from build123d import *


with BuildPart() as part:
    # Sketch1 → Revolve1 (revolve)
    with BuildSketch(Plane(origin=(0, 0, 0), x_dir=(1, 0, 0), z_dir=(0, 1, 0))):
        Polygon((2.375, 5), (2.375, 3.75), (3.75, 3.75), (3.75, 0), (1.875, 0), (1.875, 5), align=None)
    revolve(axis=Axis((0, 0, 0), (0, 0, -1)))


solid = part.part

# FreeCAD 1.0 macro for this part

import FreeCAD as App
import Part
import Sketcher

doc = App.newDocument("Part")
body = doc.addObject("PartDesign::Body", "Body")

sketch1 = body.newObject("Sketcher::SketchObject", "Sketch")
sketch1.AttachmentSupport = (doc.getObject("XZ_Plane"), [""])
sketch1.MapMode = "FlatFace"
sketch1.addGeometry([
    Part.LineSegment(App.Vector(2.4, -3.8, 0), App.Vector(2.4, -5, 0)),
    Part.LineSegment(App.Vector(2.4, -5, 0), App.Vector(1.9, -5, 0)),
    Part.LineSegment(App.Vector(1.9, -5, 0), App.Vector(1.9, 0, 0)),
    Part.LineSegment(App.Vector(1.9, 0, 0), App.Vector(3.8, 0, 0)),
    Part.LineSegment(App.Vector(3.8, 0, 0), App.Vector(3.8, -3.8, 0)),
    Part.LineSegment(App.Vector(3.8, -3.8, 0), App.Vector(2.4, -3.8, 0)),
], False)
sketch1.addConstraint([
    Sketcher.Constraint("Coincident", 0, 2, 1, 1),
    Sketcher.Constraint("Coincident", 1, 2, 2, 1),
    Sketcher.Constraint("Coincident", 2, 2, 3, 1),
    Sketcher.Constraint("Coincident", 3, 2, 4, 1),
    Sketcher.Constraint("Coincident", 4, 2, 5, 1),
    Sketcher.Constraint("Coincident", 5, 2, 0, 1),
    Sketcher.Constraint("Vertical", 0),
    Sketcher.Constraint("Horizontal", 1),
    Sketcher.Constraint("Vertical", 2),
    Sketcher.Constraint("Horizontal", 3),
    Sketcher.Constraint("Vertical", 4),
    Sketcher.Constraint("Horizontal", 5),
    Sketcher.Constraint("PointOnObject", 2, 2, -1),
    Sketcher.Constraint("DistanceY", 2, 1, 2, 2, 5.0),
    Sketcher.Constraint("DistanceX", 1, 2, 1, 1, 0.5),
    Sketcher.Constraint("DistanceY", 0, 2, 0, 1, 1.25),
    Sketcher.Constraint("DistanceX", 3, 1, 3, 2, 1.875),
    Sketcher.Constraint("DistanceX", -1, 1, 3, 2, 3.75),
])
revolution = body.newObject("PartDesign::Revolution", "Revolution")
revolution.Profile = sketch1
revolution.ReferenceAxis = (sketch1, ["V_Axis"])
revolution.Angle = 360

doc.recompute()
